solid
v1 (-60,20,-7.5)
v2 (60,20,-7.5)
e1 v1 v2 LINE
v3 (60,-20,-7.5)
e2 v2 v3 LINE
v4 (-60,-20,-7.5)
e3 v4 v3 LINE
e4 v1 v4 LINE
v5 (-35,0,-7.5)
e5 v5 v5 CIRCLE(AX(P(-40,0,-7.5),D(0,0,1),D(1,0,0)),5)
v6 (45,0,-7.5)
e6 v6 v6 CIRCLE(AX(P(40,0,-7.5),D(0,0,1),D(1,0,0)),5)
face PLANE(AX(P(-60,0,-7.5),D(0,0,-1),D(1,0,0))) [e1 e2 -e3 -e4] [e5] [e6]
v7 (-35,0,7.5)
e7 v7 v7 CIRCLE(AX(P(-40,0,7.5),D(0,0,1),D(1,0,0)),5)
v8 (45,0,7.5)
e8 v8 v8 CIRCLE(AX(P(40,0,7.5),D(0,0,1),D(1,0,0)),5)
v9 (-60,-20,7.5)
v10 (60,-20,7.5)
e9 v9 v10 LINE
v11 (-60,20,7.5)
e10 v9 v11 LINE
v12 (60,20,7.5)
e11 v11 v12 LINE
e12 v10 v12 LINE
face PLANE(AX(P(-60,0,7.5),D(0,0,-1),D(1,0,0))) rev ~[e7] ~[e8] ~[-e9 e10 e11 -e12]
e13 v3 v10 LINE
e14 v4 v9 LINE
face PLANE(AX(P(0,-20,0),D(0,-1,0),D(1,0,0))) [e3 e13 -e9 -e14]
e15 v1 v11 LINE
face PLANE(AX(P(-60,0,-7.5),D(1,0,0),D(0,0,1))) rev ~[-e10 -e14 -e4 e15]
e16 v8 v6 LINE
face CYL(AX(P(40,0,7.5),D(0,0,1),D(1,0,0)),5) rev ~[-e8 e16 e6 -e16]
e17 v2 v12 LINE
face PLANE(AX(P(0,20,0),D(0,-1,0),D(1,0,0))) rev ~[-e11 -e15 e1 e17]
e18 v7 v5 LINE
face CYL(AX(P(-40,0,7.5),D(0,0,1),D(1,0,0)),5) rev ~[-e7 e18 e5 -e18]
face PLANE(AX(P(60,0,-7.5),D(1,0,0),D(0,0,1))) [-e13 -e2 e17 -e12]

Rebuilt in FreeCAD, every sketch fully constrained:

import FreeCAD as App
import Part
import Sketcher
Q = App.Units.Quantity


def add_polygon(sketch, points):
    """Adds a closed chain of lines whose ends are joined by coincident constraints."""
    first, n = sketch.GeometryCount, len(points)
    for a, b in zip(points, points[1:] + points[:1]):
        sketch.addGeometry(Part.LineSegment(App.Vector(*a, 0), App.Vector(*b, 0)), False)
    for i in range(n):
        sketch.addConstraint(Sketcher.Constraint("Coincident", first + i, 2, first + (i + 1) % n, 1))

doc = App.newDocument("Part")
params = doc.addObject("Spreadsheet::Sheet", "Params")
for row, (alias, value) in enumerate([
    ("sketch1_width", "120 mm"),
    ("sketch1_height", "15 mm"),
    ("pad1_length", "40 mm"),
    ("sketch2_diameter", "10 mm"),
], start=1):
    params.set(f"A{row}", alias)
    params.set(f"B{row}", "=" + value)
    params.setAlias(f"B{row}", alias)

body = doc.addObject("PartDesign::Body", "Body")

# Sketch on XZ plane
sketch1 = body.newObject("Sketcher::SketchObject", "Sketch")
sketch1.AttachmentSupport = (doc.getObject("XZ_Plane"), [""])
sketch1.MapMode = "FlatFace"
add_polygon(sketch1, [(-60, 7.5), (-60, -7.5), (60, -7.5), (60, 7.5)])  # lines 0-3
sketch1.addConstraint([
    Sketcher.Constraint("Vertical", 0),
    Sketcher.Constraint("Horizontal", 1),
    Sketcher.Constraint("Vertical", 2),
    Sketcher.Constraint("Horizontal", 3),
    Sketcher.Constraint("Symmetric", 0, 2, 2, 2, -1, 1),
    Sketcher.Constraint("DistanceX", 1, 1, 1, 2, Q("120 mm")),
    Sketcher.Constraint("DistanceY", 0, 2, 0, 1, Q("15 mm")),
])
sketch1.setExpression("Constraints[9]", "Params.sketch1_width")
sketch1.setExpression("Constraints[10]", "Params.sketch1_height")
pad1 = body.newObject("PartDesign::Pad", "Pad")
pad1.Profile = sketch1
pad1.setExpression("Length", "Params.pad1_length")
pad1.Midplane = True

# Sketch on XY plane
sketch2 = body.newObject("Sketcher::SketchObject", "Sketch001")
sketch2.AttachmentSupport = (doc.getObject("XY_Plane"), [""])
sketch2.MapMode = "FlatFace"
sketch2.AttachmentOffset = App.Placement(App.Vector(0, 0, 7.5), App.Rotation())
sketch2.addGeometry([
    Part.Circle(App.Vector(-40, 0, 0), App.Vector(0, 0, 1), 5),
    Part.Circle(App.Vector(40, 0, 0), App.Vector(0, 0, 1), 5),
], False)
sketch2.addConstraint([
    Sketcher.Constraint("Equal", 0, 1),
    Sketcher.Constraint("Symmetric", 0, 3, 1, 3, -1, 1),
    Sketcher.Constraint("PointOnObject", 0, 3, -1),
    Sketcher.Constraint("Diameter", 0, Q("10 mm")),
    Sketcher.Constraint("DistanceX", 0, 3, -1, 1, Q("40 mm")),
])
sketch2.setExpression("Constraints[3]", "Params.sketch2_diameter")
pocket1 = body.newObject("PartDesign::Pocket", "Pocket")
pocket1.Profile = sketch2
pocket1.Type = "ThroughAll"

doc.recompute()
